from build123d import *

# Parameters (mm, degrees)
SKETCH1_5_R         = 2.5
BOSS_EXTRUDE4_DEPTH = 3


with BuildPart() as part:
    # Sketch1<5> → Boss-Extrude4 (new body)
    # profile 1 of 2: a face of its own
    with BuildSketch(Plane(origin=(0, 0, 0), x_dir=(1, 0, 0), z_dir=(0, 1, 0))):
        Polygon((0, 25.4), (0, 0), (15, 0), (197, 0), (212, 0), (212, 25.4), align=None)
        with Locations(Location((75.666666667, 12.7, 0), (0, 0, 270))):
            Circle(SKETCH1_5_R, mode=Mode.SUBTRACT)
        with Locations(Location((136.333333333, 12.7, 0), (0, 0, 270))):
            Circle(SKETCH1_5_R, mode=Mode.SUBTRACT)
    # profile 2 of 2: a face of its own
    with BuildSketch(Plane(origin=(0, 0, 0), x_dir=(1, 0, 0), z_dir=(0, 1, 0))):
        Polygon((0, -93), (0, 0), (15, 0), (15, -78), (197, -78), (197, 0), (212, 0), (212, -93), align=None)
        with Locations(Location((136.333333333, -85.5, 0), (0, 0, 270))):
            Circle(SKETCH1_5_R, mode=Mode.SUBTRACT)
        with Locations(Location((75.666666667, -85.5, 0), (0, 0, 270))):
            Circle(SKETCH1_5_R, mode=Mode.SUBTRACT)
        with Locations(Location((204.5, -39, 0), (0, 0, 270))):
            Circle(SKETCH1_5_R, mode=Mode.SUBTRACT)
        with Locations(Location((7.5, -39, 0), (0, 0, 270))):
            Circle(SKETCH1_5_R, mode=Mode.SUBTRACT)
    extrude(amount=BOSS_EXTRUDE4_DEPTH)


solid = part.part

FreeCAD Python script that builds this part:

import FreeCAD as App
import Part
import Sketcher
Q = App.Units.Quantity

doc = App.newDocument("Part")
body = doc.addObject("PartDesign::Body", "Body")

# Sketch on XZ plane
sketch1 = body.newObject("Sketcher::SketchObject", "Sketch")
sketch1.AttachmentSupport = (doc.getObject("XZ_Plane"), [""])
sketch1.MapMode = "FlatFace"
sketch1.addGeometry([
    Part.LineSegment(App.Vector(0, -25.4, 0), App.Vector(0, 93, 0)),  # 0
    Part.LineSegment(App.Vector(0, 93, 0), App.Vector(212, 93, 0)),  # 1
    Part.LineSegment(App.Vector(212, 93, 0), App.Vector(212, -25.4, 0)),  # 2
    Part.LineSegment(App.Vector(212, -25.4, 0), App.Vector(0, -25.4, 0)),  # 3
    Part.LineSegment(App.Vector(15, 0, 0), App.Vector(197, 0, 0)),  # 4
    Part.LineSegment(App.Vector(197, 0, 0), App.Vector(197, 78, 0)),  # 5
    Part.LineSegment(App.Vector(197, 78, 0), App.Vector(15, 78, 0)),  # 6
    Part.LineSegment(App.Vector(15, 78, 0), App.Vector(15, 0, 0)),  # 7
    Part.Circle(App.Vector(75.666667, -12.7, 0), App.Vector(0, 0, 1), 2.5),  # 8
    Part.Circle(App.Vector(136.333333, -12.7, 0), App.Vector(0, 0, 1), 2.5),  # 9
    Part.Circle(App.Vector(7.5, 39, 0), App.Vector(0, 0, 1), 2.5),  # 10
    Part.Circle(App.Vector(204.5, 39, 0), App.Vector(0, 0, 1), 2.5),  # 11
    Part.Circle(App.Vector(136.333333, 85.5, 0), App.Vector(0, 0, 1), 2.5),  # 12
    Part.Circle(App.Vector(75.666667, 85.5, 0), App.Vector(0, 0, 1), 2.5),  # 13
], False)
sketch1.addConstraint([
    Sketcher.Constraint("Coincident", 0, 2, 1, 1),
    Sketcher.Constraint("Coincident", 1, 2, 2, 1),
    Sketcher.Constraint("Coincident", 2, 2, 3, 1),
    Sketcher.Constraint("Coincident", 3, 2, 0, 1),
    Sketcher.Constraint("Coincident", 4, 2, 5, 1),
    Sketcher.Constraint("Coincident", 5, 2, 6, 1),
    Sketcher.Constraint("Coincident", 6, 2, 7, 1),
    Sketcher.Constraint("Coincident", 7, 2, 4, 1),
    Sketcher.Constraint("Vertical", 0),
    Sketcher.Constraint("Horizontal", 1),
    Sketcher.Constraint("Vertical", 2),
    Sketcher.Constraint("Horizontal", 3),
    Sketcher.Constraint("Horizontal", 4),
    Sketcher.Constraint("Vertical", 5),
    Sketcher.Constraint("Horizontal", 6),
    Sketcher.Constraint("Vertical", 7),
    Sketcher.Constraint("Equal", 8, 9),
    Sketcher.Constraint("Equal", 9, 10),
    Sketcher.Constraint("Equal", 10, 11),
    Sketcher.Constraint("Equal", 11, 12),
    Sketcher.Constraint("Equal", 12, 13),
    Sketcher.Constraint("PointOnObject", 0, 2, -2),
    Sketcher.Constraint("PointOnObject", 4, 2, -1),
    Sketcher.Constraint("Horizontal", 8, 3, 9, 3),
    Sketcher.Constraint("Horizontal", 10, 3, 11, 3),
    Sketcher.Constraint("Horizontal", 12, 3, 13, 3),
    Sketcher.Constraint("Vertical", 9, 3, 12, 3),
    Sketcher.Constraint("Vertical", 8, 3, 13, 3),
    Sketcher.Constraint("Diameter", 8, Q("5 mm")),
    Sketcher.Constraint("DistanceX", 1, 1, 1, 2, Q("212 mm")),
    Sketcher.Constraint("DistanceX", 4, 1, 4, 2, Q("182 mm")),
    Sketcher.Constraint("DistanceY", 5, 1, 5, 2, Q("78 mm")),
    Sketcher.Constraint("DistanceY", 0, 1, 0, 2, Q("118.4 mm")),
    Sketcher.Constraint("DistanceY", -1, 1, 10, 3, Q("39 mm")),
    Sketcher.Constraint("DistanceY", -1, 1, 0, 2, Q("93 mm")),
    Sketcher.Constraint("DistanceX", -1, 1, 4, 2, Q("197 mm")),
    Sketcher.Constraint("DistanceX", 10, 3, 11, 3, Q("197 mm")),
    Sketcher.Constraint("DistanceY", 8, 3, -1, 1, Q("12.7 mm")),
    Sketcher.Constraint("DistanceX", -1, 1, 10, 3, Q("7.5 mm")),
    Sketcher.Constraint("DistanceY", -1, 1, 12, 3, Q("85.5 mm")),
    Sketcher.Constraint("DistanceX", -1, 1, 8, 3, Q("75.666667 mm")),
    Sketcher.Constraint("DistanceX", -1, 1, 9, 3, Q("136.333333 mm")),
])
pad1 = body.newObject("PartDesign::Pad", "Pad")
pad1.Profile = sketch1
pad1.Length = 3
pad1.Reversed = True

doc.recompute()
